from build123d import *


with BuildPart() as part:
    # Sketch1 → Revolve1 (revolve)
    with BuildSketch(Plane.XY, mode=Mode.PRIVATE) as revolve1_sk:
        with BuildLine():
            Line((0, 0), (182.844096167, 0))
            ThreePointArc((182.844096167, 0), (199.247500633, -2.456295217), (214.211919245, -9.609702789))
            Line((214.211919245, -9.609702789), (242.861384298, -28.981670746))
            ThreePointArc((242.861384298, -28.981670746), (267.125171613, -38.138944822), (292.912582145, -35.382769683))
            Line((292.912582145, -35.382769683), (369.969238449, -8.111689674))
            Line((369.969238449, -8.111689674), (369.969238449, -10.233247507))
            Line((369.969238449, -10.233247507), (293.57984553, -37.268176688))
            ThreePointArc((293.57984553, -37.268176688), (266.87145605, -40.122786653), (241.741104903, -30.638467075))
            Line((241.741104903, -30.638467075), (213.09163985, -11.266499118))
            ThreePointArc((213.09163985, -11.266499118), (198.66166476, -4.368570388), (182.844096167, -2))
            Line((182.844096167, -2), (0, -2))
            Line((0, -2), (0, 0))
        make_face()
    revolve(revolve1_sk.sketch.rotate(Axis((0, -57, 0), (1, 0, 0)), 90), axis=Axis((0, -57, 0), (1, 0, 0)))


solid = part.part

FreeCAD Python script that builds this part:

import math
import FreeCAD as App
import Part
import Sketcher
from FreeCAD import Vector
Q = App.Units.Quantity

doc = App.newDocument("Part")
body = doc.addObject("PartDesign::Body", "Body")

sketch1 = body.newObject("Sketcher::SketchObject", "Sketch")
sketch1.AttachmentSupport = (doc.getObject("XY_Plane"), [""])
sketch1.MapMode = "FlatFace"
sketch1.addGeometry([
    Part.LineSegment(Vector(182.844096, 0, 0), Vector(0, 0, 0)),
    Part.LineSegment(Vector(0, 0, 0), Vector(0, -2, 0)),
    Part.LineSegment(Vector(0, -2, 0), Vector(182.844096, -2, 0)),
    Part.ArcOfCircle(Part.Circle(Vector(182.844096, -56, 0), Vector(0, 0, 1), 54), math.radians(55.934541), math.radians(90)),
    Part.LineSegment(Vector(213.09164, -11.266499, 0), Vector(241.741105, -30.638467, 0)),
    Part.ArcOfCircle(Part.Circle(Vector(274.229207, 17.408626, 0), Vector(0, 0, 1), 58), math.radians(-124.065459), math.radians(-70.510647)),
    Part.LineSegment(Vector(293.579846, -37.268177, 0), Vector(369.969238, -10.233248, 0)),
    Part.LineSegment(Vector(369.969238, -10.233248, 0), Vector(369.969238, -8.11169, 0)),
    Part.LineSegment(Vector(369.969238, -8.11169, 0), Vector(292.912582, -35.38277, 0)),
    Part.ArcOfCircle(Part.Circle(Vector(274.229207, 17.408626, 0), Vector(0, 0, 1), 56), math.radians(-124.065459), math.radians(-70.510647)),
    Part.LineSegment(Vector(242.861384, -28.981671, 0), Vector(214.211919, -9.609703, 0)),
    Part.ArcOfCircle(Part.Circle(Vector(182.844096, -56, 0), Vector(0, 0, 1), 56), math.radians(55.934541), math.radians(90)),
], False)
sketch1.addGeometry(Part.LineSegment(Vector(0, -57, 0), Vector(369.969238, -57, 0)), True)
sketch1.addConstraint([
    Sketcher.Constraint("Coincident", 0, 2, 1, 1),
    Sketcher.Constraint("Coincident", 1, 2, 2, 1),
    Sketcher.Constraint("Tangent", 2, 2, 3, 2),
    Sketcher.Constraint("Tangent", 3, 1, 4, 1),
    Sketcher.Constraint("Tangent", 4, 2, 5, 1),
    Sketcher.Constraint("Tangent", 5, 2, 6, 1),
    Sketcher.Constraint("Coincident", 6, 2, 7, 1),
    Sketcher.Constraint("Coincident", 7, 2, 8, 1),
    Sketcher.Constraint("Tangent", 8, 2, 9, 2),
    Sketcher.Constraint("Tangent", 9, 1, 10, 1),
    Sketcher.Constraint("Tangent", 10, 2, 11, 1),
    Sketcher.Constraint("Tangent", 11, 2, 0, 1),
    Sketcher.Constraint("Horizontal", 0),
    Sketcher.Constraint("Vertical", 1),
    Sketcher.Constraint("Horizontal", 2),
    Sketcher.Constraint("Vertical", 7),
    Sketcher.Constraint("Horizontal", 12),
    Sketcher.Constraint("Coincident", 0, 2, -1, 1),
    Sketcher.Constraint("Coincident", 9, 3, 5, 3),
    Sketcher.Constraint("Coincident", 11, 3, 3, 3),
    Sketcher.Constraint("Equal", 9, 11),
    Sketcher.Constraint("PointOnObject", 12, 1, -2),
    Sketcher.Constraint("Parallel", 6, 8),
    Sketcher.Constraint("Parallel", 4, 10),
    Sketcher.Constraint("Vertical", 7, 2, 12, 2),
    Sketcher.Constraint("Radius", 3, Q("54 mm")),
    Sketcher.Constraint("Radius", 5, Q("58 mm")),
    Sketcher.Constraint("DistanceY", 12, 1, -1, 1, Q("57 mm")),
    Sketcher.Constraint("DistanceX", 12, 1, 12, 2, Q("369.969238 mm")),
    Sketcher.Constraint("DistanceY", 3, 1, -1, 1, Q("11.266499 mm")),
    Sketcher.Constraint("DistanceX", 3, 1, 6, 2, Q("156.877599 mm")),
    Sketcher.Constraint("DistanceY", 8, 2, 9, 1, Q("6.401099 mm")),
    Sketcher.Constraint("DistanceY", 7, 2, -1, 1, Q("8.11169 mm")),
])
revolution = body.newObject("PartDesign::Revolution", "Revolution")
revolution.Profile = sketch1
revolution.ReferenceAxis = (sketch1, ["Axis0"])
revolution.Angle = 360

doc.recompute()
